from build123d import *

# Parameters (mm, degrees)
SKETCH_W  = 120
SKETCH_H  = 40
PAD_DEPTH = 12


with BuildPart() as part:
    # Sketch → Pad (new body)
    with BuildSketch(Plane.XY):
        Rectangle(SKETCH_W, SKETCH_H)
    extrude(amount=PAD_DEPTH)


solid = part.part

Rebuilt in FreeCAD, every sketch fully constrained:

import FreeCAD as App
import Part
import Sketcher
Q = App.Units.Quantity

doc = App.newDocument("Part")
params = doc.addObject("Spreadsheet::Sheet", "Params")
for row, (alias, value) in enumerate([
    ("sketch1_width", "120 mm"),
    ("sketch1_height", "40 mm"),
    ("pad1_length", "12 mm"),
], start=1):
    params.set(f"A{row}", alias)
    params.set(f"B{row}", "=" + value)
    params.setAlias(f"B{row}", alias)

body = doc.addObject("PartDesign::Body", "Body")

# Sketch on XY plane
sketch1 = body.newObject("Sketcher::SketchObject", "Sketch")
sketch1.AttachmentSupport = (doc.getObject("XY_Plane"), [""])
sketch1.MapMode = "FlatFace"
sketch1.addGeometry([
    Part.LineSegment(App.Vector(-60, 20, 0), App.Vector(-60, -20, 0)),
    Part.LineSegment(App.Vector(-60, -20, 0), App.Vector(60, -20, 0)),
    Part.LineSegment(App.Vector(60, -20, 0), App.Vector(60, 20, 0)),
    Part.LineSegment(App.Vector(60, 20, 0), App.Vector(-60, 20, 0)),
], False)
sketch1.addConstraint([
    Sketcher.Constraint("Coincident", 0, 2, 1, 1),
    Sketcher.Constraint("Coincident", 1, 2, 2, 1),
    Sketcher.Constraint("Coincident", 2, 2, 3, 1),
    Sketcher.Constraint("Coincident", 3, 2, 0, 1),
    Sketcher.Constraint("Vertical", 0),
    Sketcher.Constraint("Horizontal", 1),
    Sketcher.Constraint("Vertical", 2),
    Sketcher.Constraint("Horizontal", 3),
    Sketcher.Constraint("Symmetric", 0, 2, 2, 2, -1, 1),
    Sketcher.Constraint("DistanceX", 1, 1, 1, 2, Q("120 mm")),
    Sketcher.Constraint("DistanceY", 0, 2, 0, 1, Q("40 mm")),
])
sketch1.setExpression("Constraints[9]", "Params.sketch1_width")
sketch1.setExpression("Constraints[10]", "Params.sketch1_height")
pad1 = body.newObject("PartDesign::Pad", "Pad")
pad1.Profile = sketch1
pad1.setExpression("Length", "Params.pad1_length")

doc.recompute()
